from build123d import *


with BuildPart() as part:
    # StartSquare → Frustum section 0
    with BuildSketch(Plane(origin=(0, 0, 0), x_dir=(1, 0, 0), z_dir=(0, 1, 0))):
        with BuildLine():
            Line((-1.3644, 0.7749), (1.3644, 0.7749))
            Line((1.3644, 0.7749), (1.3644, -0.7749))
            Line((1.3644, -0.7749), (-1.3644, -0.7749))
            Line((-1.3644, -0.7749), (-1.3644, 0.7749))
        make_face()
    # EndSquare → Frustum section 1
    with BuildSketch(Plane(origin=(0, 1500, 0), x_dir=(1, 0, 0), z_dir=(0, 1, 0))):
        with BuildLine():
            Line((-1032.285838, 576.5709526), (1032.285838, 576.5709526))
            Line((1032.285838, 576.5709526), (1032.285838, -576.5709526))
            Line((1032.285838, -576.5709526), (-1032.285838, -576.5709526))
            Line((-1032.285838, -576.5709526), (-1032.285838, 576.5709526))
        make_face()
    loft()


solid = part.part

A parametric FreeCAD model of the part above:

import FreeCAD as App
import Part
import Sketcher

V = App.Vector
Q = App.Units.Quantity

doc = App.newDocument("Part")
body = doc.addObject("PartDesign::Body", "Body")

# Sketch on XZ plane
sketch1 = body.newObject("Sketcher::SketchObject", "Sketch")
sketch1.AttachmentSupport = (doc.getObject("XZ_Plane"), [""])
sketch1.MapMode = "FlatFace"
sketch1.addGeometry([
    Part.LineSegment(V(1.4, -0.8, 0), V(-1.4, -0.8, 0)),
    Part.LineSegment(V(-1.4, -0.8, 0), V(-1.4, 0.8, 0)),
    Part.LineSegment(V(-1.4, 0.8, 0), V(1.4, 0.8, 0)),
    Part.LineSegment(V(1.4, 0.8, 0), V(1.4, -0.8, 0)),
], False)
sketch1.addConstraint([
    Sketcher.Constraint("Coincident", 0, 2, 1, 1),
    Sketcher.Constraint("Coincident", 1, 2, 2, 1),
    Sketcher.Constraint("Coincident", 2, 2, 3, 1),
    Sketcher.Constraint("Coincident", 3, 2, 0, 1),
    Sketcher.Constraint("Horizontal", 0),
    Sketcher.Constraint("Vertical", 1),
    Sketcher.Constraint("Horizontal", 2),
    Sketcher.Constraint("Vertical", 3),
    Sketcher.Constraint("Symmetric", 0, 2, 2, 2, -1, 1),
    Sketcher.Constraint("DistanceX", 0, 2, 0, 1, Q("2.7288 mm")),
    Sketcher.Constraint("DistanceY", 1, 1, 1, 2, Q("1.5498 mm")),
])

# Sketch on XZ plane
sketch2 = body.newObject("Sketcher::SketchObject", "Sketch001")
sketch2.AttachmentSupport = (doc.getObject("XZ_Plane"), [""])
sketch2.MapMode = "FlatFace"
sketch2.AttachmentOffset = App.Placement(V(0, 0, -1500), App.Rotation())
sketch2.addGeometry([
    Part.LineSegment(V(1032, -577, 0), V(-1032, -577, 0)),
    Part.LineSegment(V(-1032, -577, 0), V(-1032, 577, 0)),
    Part.LineSegment(V(-1032, 577, 0), V(1032, 577, 0)),
    Part.LineSegment(V(1032, 577, 0), V(1032, -577, 0)),
], False)
sketch2.addConstraint([
    Sketcher.Constraint("Coincident", 0, 2, 1, 1),
    Sketcher.Constraint("Coincident", 1, 2, 2, 1),
    Sketcher.Constraint("Coincident", 2, 2, 3, 1),
    Sketcher.Constraint("Coincident", 3, 2, 0, 1),
    Sketcher.Constraint("Horizontal", 0),
    Sketcher.Constraint("Vertical", 1),
    Sketcher.Constraint("Horizontal", 2),
    Sketcher.Constraint("Vertical", 3),
    Sketcher.Constraint("Symmetric", 0, 2, 2, 2, -1, 1),
    Sketcher.Constraint("DistanceX", 0, 2, 0, 1, Q("2064.571676 mm")),
    Sketcher.Constraint("DistanceY", 1, 1, 1, 2, Q("1153.141905 mm")),
])

additiveloft = body.newObject("PartDesign::AdditiveLoft", "AdditiveLoft")
additiveloft.Profile = sketch1
additiveloft.Sections = [sketch2]

doc.recompute()
